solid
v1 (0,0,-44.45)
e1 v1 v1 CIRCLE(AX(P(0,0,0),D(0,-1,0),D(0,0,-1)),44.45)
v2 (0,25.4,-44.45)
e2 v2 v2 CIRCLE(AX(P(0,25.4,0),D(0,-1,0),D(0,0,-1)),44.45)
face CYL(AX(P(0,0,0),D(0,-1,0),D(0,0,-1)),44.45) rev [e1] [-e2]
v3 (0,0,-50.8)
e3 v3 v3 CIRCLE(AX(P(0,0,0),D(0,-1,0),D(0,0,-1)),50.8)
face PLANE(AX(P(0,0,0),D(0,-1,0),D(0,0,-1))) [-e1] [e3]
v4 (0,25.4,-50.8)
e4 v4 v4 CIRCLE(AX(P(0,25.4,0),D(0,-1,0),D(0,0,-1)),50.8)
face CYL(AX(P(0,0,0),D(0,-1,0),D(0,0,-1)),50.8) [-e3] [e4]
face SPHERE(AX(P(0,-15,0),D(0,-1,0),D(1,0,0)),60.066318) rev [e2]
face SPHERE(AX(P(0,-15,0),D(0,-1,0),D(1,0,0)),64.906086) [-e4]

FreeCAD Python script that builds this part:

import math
import FreeCAD as App
import Part
import Sketcher

V = App.Vector
Q = App.Units.Quantity

doc = App.newDocument("Part")
body = doc.addObject("PartDesign::Body", "Body")

sketch1 = doc.addObject("Sketcher::SketchObject", "Sketch")
body.addObject(sketch1)
sketch1.AttachmentSupport = (doc.XY_Plane, [""])
sketch1.MapMode = "FlatFace"
sketch1.addGeometry([
    Part.LineSegment(V(44.5, 25.4, 0), V(44.5, 0, 0)),
    Part.LineSegment(V(44.5, 0, 0), V(50.8, 0, 0)),
    Part.LineSegment(V(50.8, 0, 0), V(50.8, 25.4, 0)),
    Part.ArcOfCircle(Part.Circle(V(0, -15, 0), V(0, 0, 1), 64.9), math.radians(38), math.radians(90)),
    Part.LineSegment(V(0, 49.9, 0), V(0, 45.1, 0)),
    Part.ArcOfCircle(Part.Circle(V(0, -15, 0), V(0, 0, 1), 60.1), math.radians(42), math.radians(90)),
], False)
sketch1.addConstraint([
    Sketcher.Constraint("Coincident", 0, 2, 1, 1),
    Sketcher.Constraint("Coincident", 1, 2, 2, 1),
    Sketcher.Constraint("Coincident", 2, 2, 3, 1),
    Sketcher.Constraint("Coincident", 3, 2, 4, 1),
    Sketcher.Constraint("Coincident", 4, 2, 5, 2),
    Sketcher.Constraint("Coincident", 5, 1, 0, 1),
    Sketcher.Constraint("Vertical", 0),
    Sketcher.Constraint("Horizontal", 1),
    Sketcher.Constraint("Vertical", 2),
    Sketcher.Constraint("Vertical", 4),
    Sketcher.Constraint("Coincident", 5, 3, 3, 3),
    Sketcher.Constraint("PointOnObject", 3, 3, -2),
    Sketcher.Constraint("PointOnObject", 0, 2, -1),
    Sketcher.Constraint("PointOnObject", 3, 2, -2),
    Sketcher.Constraint("Horizontal", 2, 2, 5, 1),
    Sketcher.Constraint("DistanceY", 0, 2, 0, 1, Q("1 in")),
    Sketcher.Constraint("DistanceX", -1, 1, 1, 2, Q("2 in")),
    Sketcher.Constraint("DistanceX", 1, 1, 1, 2, Q("0.25 in")),
    Sketcher.Constraint("Radius", 3, Q("64.906086 mm")),
])
revolution = doc.addObject("PartDesign::Revolution", "Revolution")
body.addObject(revolution)
revolution.Profile = sketch1
revolution.ReferenceAxis = (sketch1, ["V_Axis"])
revolution.Angle = 360

doc.recompute()
